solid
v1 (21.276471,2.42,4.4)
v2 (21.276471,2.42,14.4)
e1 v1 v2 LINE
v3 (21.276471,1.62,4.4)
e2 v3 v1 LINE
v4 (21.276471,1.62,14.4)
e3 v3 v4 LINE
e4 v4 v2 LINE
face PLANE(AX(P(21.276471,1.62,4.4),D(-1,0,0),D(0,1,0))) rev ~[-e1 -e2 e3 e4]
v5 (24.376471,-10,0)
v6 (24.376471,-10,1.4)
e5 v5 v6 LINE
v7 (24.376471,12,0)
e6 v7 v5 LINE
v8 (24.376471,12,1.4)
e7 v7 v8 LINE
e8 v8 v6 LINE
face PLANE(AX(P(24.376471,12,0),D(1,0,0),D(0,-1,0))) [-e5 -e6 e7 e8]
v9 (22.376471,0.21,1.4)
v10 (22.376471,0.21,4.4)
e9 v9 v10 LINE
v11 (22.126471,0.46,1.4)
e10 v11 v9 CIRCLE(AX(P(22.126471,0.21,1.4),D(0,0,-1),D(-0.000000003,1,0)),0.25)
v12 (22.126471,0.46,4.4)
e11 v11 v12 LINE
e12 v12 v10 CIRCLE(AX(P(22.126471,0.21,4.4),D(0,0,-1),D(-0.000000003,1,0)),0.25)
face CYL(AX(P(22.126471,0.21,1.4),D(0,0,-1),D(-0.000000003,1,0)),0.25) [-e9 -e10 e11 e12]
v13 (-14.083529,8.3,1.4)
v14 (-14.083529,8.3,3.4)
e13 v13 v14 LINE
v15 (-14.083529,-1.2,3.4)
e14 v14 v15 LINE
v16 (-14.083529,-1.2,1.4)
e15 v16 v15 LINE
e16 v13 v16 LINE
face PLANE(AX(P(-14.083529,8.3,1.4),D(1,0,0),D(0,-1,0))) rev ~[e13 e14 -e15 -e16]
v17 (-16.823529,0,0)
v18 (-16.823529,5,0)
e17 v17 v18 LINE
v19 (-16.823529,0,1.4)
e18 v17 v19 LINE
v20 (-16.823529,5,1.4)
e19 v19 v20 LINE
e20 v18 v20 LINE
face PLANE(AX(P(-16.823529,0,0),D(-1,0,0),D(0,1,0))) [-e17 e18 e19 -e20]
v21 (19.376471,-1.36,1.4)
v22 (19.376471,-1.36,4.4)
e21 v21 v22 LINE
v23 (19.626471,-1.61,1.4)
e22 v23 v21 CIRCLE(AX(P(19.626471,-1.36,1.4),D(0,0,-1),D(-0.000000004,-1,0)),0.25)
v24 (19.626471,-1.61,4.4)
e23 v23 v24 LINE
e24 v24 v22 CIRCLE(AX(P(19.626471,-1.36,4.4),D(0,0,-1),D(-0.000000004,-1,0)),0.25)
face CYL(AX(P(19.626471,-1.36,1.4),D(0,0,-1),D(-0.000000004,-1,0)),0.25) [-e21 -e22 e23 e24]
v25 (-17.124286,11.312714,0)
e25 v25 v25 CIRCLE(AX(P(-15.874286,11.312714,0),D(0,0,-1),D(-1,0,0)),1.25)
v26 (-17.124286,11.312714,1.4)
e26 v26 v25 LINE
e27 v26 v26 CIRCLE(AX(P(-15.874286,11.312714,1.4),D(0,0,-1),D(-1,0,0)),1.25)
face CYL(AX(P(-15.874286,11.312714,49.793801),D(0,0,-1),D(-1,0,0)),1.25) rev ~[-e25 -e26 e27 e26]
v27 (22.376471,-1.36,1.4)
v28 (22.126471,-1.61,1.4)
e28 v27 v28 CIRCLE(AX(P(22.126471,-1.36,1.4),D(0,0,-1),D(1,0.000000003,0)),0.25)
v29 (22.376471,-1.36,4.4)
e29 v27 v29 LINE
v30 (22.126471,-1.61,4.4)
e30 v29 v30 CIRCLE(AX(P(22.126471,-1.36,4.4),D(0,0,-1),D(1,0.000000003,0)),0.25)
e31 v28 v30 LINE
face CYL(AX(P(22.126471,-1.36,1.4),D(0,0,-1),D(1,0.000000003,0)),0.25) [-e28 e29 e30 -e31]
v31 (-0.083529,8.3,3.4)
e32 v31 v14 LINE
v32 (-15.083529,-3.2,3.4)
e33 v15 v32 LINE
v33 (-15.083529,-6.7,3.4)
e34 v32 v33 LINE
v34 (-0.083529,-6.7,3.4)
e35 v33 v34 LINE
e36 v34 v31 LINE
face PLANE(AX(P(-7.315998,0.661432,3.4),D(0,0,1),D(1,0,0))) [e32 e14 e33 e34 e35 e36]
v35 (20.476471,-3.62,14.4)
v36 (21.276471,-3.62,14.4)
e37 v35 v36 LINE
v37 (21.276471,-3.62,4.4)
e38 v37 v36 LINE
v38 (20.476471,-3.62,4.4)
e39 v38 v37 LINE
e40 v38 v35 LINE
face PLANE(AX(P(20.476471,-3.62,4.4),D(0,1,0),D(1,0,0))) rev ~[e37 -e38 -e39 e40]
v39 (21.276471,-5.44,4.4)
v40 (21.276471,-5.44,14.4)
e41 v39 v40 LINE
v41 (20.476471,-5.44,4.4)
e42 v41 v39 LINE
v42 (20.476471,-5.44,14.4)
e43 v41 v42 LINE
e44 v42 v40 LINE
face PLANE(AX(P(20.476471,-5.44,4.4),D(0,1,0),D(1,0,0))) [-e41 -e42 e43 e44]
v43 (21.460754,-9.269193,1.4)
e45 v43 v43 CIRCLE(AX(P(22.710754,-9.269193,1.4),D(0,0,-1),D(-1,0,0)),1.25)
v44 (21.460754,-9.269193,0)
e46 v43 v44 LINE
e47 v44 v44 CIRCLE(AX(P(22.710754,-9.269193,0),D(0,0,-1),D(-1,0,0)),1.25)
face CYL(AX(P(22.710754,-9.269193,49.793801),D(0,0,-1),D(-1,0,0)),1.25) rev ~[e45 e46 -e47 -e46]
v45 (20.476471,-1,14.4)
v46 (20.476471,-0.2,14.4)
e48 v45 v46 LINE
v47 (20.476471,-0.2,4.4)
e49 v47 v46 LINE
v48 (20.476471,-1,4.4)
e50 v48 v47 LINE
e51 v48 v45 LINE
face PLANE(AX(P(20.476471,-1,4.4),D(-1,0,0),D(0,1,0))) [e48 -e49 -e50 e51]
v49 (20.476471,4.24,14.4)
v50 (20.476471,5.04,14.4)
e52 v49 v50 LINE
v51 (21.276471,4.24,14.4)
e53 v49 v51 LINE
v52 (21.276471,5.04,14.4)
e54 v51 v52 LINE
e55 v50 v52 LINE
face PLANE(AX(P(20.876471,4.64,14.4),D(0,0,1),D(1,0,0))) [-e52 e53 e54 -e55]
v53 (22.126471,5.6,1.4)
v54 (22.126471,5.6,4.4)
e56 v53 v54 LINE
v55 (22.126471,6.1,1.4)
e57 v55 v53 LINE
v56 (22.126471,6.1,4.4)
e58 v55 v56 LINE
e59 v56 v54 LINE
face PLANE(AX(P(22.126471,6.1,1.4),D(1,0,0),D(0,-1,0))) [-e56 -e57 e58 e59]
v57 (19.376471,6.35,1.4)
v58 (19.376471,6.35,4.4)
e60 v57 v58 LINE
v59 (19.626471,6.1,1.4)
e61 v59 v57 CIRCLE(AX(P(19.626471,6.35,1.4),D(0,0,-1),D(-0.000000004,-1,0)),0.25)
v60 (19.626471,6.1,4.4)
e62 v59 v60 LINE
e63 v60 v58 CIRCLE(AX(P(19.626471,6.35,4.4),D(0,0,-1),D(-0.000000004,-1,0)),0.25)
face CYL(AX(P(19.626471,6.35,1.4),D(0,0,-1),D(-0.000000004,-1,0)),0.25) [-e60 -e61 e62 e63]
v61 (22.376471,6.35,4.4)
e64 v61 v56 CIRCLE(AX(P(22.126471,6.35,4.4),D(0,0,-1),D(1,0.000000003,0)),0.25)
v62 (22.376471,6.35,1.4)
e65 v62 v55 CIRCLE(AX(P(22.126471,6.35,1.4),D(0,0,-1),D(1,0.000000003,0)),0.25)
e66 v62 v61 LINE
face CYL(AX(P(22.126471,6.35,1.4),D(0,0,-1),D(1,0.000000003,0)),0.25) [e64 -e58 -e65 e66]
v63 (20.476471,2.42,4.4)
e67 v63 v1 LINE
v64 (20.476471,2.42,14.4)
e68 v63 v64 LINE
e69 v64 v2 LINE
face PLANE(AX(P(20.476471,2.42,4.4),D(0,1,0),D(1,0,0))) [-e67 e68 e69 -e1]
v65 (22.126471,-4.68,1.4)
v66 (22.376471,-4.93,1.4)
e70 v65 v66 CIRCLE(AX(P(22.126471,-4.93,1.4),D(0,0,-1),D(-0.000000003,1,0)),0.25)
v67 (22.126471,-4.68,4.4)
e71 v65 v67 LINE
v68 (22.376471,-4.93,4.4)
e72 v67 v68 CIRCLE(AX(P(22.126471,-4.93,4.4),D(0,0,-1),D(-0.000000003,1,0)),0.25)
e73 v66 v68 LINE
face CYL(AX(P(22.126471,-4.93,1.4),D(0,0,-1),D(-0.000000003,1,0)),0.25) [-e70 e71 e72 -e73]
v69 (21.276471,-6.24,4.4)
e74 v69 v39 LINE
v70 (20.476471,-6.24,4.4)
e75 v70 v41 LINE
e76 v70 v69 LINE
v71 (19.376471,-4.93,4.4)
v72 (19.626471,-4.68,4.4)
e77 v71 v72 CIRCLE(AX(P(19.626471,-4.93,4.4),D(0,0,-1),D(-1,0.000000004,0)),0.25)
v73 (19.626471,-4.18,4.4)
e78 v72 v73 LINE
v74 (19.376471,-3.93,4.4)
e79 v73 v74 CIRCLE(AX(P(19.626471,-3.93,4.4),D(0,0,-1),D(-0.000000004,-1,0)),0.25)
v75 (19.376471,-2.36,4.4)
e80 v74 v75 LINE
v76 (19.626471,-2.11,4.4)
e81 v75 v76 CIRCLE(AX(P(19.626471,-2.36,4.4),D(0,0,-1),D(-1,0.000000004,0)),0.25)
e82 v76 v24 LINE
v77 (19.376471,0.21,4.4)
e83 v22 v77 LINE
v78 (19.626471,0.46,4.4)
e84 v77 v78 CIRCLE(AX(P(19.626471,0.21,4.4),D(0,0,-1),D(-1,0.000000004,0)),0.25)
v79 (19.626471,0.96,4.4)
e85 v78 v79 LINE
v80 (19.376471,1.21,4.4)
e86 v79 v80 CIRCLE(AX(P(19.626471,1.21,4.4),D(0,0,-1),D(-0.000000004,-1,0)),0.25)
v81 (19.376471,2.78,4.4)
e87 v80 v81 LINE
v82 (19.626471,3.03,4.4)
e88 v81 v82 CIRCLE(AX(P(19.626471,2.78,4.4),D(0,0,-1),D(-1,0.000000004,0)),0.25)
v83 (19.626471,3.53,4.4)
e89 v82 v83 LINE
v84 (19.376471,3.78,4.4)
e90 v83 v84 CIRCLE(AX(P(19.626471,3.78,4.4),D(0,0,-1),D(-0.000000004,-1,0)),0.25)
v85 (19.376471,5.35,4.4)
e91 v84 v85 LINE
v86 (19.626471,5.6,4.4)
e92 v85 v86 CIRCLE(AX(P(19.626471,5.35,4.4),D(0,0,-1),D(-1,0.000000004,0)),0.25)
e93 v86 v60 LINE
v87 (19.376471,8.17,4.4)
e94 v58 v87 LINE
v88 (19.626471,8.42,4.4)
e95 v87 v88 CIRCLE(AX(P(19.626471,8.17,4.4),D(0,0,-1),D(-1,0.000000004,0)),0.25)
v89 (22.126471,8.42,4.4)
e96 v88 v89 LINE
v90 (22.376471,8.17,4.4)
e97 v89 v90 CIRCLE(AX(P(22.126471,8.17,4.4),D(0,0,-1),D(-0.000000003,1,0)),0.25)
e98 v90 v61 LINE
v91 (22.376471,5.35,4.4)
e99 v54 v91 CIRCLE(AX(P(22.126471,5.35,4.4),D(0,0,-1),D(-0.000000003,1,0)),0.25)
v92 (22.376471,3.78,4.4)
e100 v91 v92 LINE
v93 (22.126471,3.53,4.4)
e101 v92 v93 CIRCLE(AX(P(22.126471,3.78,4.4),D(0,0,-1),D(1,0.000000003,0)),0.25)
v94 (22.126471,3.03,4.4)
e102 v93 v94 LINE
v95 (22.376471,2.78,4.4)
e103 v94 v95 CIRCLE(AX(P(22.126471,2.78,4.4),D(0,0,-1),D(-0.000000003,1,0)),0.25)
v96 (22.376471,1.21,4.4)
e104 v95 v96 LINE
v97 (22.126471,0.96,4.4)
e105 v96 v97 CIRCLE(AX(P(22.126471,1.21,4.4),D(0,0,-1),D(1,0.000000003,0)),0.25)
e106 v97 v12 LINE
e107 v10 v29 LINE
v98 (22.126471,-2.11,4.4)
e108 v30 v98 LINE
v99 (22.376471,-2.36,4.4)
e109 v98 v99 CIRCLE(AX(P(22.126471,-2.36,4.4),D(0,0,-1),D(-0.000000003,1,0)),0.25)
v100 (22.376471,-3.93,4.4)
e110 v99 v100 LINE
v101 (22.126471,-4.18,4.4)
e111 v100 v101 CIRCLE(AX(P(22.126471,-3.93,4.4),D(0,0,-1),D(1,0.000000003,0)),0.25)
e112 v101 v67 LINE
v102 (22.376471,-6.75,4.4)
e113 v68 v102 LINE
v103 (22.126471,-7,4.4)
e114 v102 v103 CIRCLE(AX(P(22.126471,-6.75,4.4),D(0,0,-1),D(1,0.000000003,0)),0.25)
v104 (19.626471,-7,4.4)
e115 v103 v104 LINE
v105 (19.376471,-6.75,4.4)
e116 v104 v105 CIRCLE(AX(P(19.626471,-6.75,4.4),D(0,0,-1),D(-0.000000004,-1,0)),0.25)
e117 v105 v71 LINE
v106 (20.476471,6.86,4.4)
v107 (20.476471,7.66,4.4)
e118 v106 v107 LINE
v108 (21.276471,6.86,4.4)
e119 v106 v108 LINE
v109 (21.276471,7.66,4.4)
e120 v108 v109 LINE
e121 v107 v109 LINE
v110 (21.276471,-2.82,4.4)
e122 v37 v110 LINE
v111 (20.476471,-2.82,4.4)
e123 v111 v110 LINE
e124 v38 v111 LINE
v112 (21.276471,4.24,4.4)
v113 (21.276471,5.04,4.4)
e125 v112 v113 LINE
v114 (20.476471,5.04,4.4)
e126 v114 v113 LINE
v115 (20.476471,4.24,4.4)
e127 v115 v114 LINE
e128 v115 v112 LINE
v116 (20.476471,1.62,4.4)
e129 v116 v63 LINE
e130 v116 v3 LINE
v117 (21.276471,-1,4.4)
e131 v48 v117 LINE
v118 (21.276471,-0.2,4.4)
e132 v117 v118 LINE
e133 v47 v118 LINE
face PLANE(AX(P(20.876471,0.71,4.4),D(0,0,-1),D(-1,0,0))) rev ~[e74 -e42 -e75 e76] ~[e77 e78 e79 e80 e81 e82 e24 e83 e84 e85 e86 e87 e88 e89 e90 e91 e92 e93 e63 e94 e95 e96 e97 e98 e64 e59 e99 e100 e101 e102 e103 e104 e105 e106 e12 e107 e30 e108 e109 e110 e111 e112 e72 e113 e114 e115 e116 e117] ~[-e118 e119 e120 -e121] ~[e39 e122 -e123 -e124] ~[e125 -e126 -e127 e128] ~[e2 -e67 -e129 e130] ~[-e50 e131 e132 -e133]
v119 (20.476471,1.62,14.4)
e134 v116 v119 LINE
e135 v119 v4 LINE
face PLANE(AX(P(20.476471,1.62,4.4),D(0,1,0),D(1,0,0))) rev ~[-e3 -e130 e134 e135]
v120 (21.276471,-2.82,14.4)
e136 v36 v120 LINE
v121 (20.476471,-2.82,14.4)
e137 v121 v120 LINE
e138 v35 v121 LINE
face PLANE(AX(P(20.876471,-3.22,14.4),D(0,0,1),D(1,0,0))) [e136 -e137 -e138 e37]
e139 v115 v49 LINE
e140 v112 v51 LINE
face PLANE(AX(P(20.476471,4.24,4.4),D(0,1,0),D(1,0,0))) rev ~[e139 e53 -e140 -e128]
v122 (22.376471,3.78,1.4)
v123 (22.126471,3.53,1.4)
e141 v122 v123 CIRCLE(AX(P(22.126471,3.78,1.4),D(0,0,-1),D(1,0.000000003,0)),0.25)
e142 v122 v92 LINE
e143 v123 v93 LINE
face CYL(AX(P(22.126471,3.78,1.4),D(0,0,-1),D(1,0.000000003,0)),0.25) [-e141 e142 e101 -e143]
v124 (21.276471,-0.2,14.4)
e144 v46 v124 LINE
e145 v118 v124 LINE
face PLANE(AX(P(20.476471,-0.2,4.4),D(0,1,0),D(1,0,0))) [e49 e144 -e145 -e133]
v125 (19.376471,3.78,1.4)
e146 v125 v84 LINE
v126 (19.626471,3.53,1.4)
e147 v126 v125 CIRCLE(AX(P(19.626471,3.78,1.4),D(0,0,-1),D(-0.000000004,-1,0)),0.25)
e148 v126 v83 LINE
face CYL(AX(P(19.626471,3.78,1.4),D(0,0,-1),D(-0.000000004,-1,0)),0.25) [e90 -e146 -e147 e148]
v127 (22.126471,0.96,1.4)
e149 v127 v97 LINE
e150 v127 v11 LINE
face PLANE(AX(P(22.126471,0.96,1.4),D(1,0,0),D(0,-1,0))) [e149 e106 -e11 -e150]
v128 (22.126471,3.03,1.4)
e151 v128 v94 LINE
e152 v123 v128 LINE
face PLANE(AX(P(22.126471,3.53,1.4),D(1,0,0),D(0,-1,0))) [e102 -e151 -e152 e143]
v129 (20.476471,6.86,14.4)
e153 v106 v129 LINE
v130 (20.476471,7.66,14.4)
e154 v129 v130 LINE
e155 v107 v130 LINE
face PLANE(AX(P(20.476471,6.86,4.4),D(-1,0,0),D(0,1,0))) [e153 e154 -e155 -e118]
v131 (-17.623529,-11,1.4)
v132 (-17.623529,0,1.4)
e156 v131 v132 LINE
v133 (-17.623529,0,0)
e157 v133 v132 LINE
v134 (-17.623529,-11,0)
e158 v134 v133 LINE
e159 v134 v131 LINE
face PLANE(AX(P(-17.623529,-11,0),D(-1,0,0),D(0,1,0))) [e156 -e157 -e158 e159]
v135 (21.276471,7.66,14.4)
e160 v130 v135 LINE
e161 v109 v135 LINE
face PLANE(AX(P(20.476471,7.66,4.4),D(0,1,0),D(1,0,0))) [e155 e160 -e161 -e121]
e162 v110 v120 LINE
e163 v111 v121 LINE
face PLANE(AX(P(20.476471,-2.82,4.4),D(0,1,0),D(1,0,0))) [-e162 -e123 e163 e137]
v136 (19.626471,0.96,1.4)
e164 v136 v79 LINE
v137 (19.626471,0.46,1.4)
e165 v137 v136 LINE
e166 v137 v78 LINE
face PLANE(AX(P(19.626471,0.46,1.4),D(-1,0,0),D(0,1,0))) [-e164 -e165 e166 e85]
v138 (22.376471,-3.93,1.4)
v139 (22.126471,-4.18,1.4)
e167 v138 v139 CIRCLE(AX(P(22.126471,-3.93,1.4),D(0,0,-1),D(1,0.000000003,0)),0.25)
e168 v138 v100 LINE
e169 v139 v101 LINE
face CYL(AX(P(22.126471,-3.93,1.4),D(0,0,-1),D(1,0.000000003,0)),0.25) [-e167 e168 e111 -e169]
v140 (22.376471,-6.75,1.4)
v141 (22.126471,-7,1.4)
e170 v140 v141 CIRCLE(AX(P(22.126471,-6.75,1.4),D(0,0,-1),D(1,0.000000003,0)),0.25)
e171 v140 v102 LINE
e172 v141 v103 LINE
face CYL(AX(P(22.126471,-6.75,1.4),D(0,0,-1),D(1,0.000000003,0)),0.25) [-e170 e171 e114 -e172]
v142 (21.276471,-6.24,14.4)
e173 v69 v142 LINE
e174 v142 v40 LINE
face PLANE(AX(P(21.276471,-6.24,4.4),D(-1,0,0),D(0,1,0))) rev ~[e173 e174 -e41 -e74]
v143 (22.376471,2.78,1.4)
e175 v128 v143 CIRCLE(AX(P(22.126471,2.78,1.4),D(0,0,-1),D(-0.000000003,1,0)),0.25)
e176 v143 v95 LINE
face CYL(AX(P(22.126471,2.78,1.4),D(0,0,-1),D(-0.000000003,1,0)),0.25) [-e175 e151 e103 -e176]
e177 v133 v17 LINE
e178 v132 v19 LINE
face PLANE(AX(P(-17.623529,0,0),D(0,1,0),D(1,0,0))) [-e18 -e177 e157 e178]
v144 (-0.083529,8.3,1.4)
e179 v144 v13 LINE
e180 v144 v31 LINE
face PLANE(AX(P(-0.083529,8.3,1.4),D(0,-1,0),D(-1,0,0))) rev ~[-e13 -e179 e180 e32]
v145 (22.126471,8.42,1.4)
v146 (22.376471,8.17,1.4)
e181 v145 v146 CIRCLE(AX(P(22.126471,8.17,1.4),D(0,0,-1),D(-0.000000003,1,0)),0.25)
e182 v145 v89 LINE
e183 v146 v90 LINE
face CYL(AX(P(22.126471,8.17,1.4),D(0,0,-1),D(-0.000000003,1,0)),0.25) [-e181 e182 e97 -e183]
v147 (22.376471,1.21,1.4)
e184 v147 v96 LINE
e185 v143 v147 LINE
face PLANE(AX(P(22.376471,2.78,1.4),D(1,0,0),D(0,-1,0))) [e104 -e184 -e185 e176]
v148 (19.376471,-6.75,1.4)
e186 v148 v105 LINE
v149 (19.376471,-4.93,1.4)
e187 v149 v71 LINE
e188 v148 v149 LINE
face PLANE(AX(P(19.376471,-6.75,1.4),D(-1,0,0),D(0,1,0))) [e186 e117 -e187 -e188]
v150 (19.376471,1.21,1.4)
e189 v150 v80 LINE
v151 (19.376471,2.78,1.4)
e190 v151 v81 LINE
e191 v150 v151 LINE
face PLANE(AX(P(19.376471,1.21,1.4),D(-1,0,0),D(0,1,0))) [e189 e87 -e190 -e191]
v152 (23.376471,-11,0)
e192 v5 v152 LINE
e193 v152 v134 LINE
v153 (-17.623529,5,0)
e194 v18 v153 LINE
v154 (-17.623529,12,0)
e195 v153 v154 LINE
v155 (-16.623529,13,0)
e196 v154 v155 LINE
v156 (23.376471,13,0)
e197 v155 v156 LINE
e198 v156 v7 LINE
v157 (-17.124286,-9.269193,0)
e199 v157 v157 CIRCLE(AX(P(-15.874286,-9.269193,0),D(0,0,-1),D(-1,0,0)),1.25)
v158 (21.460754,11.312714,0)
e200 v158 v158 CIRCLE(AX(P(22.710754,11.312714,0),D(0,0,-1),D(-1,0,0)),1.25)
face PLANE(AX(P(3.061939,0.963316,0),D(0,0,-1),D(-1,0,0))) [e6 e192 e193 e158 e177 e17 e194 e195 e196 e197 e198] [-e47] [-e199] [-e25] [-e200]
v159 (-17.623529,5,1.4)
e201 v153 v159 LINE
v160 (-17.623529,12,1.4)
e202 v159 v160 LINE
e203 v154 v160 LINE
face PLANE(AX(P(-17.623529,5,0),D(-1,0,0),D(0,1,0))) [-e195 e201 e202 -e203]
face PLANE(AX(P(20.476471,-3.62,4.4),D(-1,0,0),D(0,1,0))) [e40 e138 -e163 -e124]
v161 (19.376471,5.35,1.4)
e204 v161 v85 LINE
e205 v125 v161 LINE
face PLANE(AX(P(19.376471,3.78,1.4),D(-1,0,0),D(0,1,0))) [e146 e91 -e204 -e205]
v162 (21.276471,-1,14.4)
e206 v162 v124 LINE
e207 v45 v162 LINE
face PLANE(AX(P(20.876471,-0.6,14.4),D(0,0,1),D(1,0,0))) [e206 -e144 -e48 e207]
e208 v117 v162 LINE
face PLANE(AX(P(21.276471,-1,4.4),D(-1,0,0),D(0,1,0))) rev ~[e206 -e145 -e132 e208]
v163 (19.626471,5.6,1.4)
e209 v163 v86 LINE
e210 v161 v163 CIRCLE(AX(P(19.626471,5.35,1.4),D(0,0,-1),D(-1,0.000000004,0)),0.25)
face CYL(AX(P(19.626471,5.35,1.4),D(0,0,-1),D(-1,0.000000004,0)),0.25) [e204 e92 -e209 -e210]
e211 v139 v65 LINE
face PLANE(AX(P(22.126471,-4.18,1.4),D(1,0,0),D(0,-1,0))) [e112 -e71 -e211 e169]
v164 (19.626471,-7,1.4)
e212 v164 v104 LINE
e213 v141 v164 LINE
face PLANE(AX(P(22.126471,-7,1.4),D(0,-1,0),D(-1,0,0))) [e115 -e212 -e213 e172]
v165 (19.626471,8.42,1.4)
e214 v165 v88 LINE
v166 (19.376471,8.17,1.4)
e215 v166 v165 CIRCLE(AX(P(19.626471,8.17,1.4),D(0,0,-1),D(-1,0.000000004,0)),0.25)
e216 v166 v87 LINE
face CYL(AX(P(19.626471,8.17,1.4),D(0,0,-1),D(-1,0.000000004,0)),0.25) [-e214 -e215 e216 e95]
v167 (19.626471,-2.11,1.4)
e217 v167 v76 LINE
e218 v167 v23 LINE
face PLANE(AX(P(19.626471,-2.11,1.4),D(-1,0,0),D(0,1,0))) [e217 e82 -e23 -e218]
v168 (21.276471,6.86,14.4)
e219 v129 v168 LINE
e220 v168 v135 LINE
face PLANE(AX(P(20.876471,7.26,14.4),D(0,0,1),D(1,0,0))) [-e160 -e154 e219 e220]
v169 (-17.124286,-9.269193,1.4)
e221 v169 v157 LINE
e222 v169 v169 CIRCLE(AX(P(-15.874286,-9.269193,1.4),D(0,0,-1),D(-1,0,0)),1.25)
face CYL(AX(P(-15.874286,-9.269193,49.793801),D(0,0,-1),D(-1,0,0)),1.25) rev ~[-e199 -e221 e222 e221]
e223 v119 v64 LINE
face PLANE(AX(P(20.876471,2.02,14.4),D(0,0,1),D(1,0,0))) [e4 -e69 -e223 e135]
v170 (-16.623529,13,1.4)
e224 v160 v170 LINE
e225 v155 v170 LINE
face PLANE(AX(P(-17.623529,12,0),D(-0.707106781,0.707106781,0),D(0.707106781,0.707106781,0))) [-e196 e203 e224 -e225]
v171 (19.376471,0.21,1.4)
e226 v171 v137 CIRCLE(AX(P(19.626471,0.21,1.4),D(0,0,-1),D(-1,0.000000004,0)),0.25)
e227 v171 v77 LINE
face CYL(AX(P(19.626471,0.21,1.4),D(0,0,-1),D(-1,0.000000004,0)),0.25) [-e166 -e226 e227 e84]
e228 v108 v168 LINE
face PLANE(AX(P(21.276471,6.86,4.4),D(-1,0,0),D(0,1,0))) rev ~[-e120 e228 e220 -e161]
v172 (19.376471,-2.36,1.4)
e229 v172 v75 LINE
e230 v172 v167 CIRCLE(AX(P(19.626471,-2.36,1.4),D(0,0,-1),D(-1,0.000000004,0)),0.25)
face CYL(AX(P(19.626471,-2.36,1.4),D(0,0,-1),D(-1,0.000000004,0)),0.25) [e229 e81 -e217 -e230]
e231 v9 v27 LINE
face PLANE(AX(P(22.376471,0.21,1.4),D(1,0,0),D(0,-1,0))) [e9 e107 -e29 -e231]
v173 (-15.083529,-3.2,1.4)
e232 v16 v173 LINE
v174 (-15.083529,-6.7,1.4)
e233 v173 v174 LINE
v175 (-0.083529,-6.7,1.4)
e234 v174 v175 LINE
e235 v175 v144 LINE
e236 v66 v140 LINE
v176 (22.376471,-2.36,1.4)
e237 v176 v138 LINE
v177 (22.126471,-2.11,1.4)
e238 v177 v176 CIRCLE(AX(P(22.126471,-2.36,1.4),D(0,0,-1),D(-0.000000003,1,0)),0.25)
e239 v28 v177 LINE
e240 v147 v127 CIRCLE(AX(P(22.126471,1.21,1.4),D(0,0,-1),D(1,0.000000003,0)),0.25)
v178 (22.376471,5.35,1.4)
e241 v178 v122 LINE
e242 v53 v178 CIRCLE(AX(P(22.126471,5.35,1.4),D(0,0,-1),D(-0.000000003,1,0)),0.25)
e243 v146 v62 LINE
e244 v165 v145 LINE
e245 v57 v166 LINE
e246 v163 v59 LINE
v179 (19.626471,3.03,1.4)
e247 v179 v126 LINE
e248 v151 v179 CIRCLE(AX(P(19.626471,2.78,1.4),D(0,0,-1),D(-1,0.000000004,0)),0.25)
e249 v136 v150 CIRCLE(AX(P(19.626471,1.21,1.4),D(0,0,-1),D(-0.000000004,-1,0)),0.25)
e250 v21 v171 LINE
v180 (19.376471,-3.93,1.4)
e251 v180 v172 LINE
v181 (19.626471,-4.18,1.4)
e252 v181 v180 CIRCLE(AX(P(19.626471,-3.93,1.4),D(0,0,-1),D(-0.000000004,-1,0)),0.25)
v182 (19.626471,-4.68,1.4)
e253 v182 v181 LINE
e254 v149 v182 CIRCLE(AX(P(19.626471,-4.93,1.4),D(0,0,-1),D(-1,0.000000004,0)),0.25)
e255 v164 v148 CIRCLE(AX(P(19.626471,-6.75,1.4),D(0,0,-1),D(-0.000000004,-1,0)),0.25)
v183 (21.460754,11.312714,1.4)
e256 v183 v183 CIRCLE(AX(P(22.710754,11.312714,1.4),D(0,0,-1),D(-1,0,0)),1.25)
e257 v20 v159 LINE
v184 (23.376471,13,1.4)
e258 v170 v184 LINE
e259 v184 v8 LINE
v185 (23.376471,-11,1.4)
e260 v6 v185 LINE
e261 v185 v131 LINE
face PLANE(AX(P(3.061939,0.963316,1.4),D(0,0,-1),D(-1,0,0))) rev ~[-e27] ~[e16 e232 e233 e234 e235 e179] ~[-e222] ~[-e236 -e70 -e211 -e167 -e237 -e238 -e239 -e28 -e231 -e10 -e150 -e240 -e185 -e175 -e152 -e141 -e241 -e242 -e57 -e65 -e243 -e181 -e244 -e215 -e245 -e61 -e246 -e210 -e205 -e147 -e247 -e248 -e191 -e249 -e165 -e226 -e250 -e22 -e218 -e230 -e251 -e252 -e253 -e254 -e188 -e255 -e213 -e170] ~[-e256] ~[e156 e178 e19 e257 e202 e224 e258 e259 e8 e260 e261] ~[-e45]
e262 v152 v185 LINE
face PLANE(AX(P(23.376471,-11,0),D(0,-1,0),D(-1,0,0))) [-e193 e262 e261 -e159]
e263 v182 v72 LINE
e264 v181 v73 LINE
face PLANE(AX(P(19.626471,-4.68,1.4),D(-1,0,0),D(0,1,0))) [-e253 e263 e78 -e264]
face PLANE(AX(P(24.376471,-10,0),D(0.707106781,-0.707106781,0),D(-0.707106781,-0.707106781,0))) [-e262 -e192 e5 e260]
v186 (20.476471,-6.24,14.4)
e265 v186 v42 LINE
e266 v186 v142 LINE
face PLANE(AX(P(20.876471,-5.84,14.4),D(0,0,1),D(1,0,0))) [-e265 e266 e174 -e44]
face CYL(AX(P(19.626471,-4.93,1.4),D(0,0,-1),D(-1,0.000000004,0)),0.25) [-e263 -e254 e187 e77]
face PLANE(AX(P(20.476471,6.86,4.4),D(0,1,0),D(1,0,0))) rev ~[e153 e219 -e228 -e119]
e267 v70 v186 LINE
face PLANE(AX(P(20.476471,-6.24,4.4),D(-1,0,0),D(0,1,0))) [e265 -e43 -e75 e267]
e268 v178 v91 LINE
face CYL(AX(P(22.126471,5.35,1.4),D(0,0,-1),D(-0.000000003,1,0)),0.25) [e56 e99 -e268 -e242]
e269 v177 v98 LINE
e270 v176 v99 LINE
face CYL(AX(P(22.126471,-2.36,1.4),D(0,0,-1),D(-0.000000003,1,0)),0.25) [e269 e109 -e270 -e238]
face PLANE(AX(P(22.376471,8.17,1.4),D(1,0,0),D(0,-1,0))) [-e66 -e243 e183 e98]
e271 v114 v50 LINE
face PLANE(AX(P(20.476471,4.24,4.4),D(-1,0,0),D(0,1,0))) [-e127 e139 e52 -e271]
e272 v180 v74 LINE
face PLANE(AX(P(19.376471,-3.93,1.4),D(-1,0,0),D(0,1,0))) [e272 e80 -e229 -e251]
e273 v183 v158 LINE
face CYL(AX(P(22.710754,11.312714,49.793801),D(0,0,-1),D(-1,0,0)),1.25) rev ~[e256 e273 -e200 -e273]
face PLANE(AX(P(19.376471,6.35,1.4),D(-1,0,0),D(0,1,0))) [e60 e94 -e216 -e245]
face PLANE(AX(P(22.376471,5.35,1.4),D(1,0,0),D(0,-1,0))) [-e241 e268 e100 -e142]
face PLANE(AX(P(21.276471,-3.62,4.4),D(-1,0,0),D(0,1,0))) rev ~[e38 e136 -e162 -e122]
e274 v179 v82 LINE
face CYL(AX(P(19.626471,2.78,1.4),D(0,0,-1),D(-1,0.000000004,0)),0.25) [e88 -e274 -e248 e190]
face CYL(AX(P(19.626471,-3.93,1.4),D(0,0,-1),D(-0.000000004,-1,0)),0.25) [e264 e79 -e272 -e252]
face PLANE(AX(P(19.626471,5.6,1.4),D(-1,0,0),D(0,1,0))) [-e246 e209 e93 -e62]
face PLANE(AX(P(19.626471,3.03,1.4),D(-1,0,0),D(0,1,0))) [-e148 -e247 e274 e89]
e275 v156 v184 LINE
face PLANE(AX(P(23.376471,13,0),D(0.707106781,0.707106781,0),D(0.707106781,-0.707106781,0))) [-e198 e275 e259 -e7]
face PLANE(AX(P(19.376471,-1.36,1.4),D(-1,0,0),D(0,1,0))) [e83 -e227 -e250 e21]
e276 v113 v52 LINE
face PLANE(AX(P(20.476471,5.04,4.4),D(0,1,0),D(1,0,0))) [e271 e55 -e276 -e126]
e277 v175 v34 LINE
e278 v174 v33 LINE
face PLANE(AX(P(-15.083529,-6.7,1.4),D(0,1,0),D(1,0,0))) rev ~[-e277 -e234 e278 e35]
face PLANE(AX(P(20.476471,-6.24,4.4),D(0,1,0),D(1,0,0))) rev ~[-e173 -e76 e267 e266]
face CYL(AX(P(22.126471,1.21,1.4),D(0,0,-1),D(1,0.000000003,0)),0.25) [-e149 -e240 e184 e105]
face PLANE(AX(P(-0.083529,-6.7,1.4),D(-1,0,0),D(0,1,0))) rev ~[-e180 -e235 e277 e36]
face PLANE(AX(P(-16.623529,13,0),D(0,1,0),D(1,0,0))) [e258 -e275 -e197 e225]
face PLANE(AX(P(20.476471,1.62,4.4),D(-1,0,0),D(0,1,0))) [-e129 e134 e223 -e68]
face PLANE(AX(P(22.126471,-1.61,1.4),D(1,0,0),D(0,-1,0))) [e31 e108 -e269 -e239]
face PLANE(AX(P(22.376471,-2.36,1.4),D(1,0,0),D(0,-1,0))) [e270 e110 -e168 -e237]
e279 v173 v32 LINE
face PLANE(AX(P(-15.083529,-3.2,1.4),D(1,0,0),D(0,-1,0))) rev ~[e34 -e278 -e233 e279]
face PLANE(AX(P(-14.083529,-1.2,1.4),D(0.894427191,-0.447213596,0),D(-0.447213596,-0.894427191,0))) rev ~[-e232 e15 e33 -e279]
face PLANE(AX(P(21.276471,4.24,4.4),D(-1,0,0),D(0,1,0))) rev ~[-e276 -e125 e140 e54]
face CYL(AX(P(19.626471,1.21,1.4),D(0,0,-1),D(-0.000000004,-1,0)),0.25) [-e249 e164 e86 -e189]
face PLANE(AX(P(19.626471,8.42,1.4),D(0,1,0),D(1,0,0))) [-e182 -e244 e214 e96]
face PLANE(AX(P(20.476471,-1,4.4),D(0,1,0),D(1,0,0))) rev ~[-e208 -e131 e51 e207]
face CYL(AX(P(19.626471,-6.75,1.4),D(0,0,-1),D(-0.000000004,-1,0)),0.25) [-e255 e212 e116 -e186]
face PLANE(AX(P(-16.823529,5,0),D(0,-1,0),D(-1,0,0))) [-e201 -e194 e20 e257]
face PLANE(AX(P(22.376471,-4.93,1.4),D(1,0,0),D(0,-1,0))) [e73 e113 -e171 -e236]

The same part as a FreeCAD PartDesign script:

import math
import FreeCAD as App
import Part
import Sketcher

V = App.Vector
Q = App.Units.Quantity

doc = App.newDocument("Part")
params = doc.addObject("Spreadsheet::Sheet", "Params")
for row, (alias, value) in enumerate([
    ("sketch1_width", "41 mm"),
    ("sketch1_width2", "40 mm"),
    ("sketch1_height", "7 mm"),
    ("sketch1_height2", "5 mm"),
    ("sketch1_height3", "11 mm"),
    ("pad1_length", "1.4 mm"),
    ("sketch2_diameter", "2.5 mm"),
    ("hole_diameter", "2.5 mm"),
    ("sketch3_width", "15 mm"),
    ("sketch3_width2", "14 mm"),
    ("sketch3_height", "9.5 mm"),
    ("sketch3_height2", "3.5 mm"),
    ("pad2_length", "2 mm"),
    ("sketch4_radius", "0.25 mm"),
    ("sketch4_width", "2.5 mm"),
    ("sketch4_height", "0.5 mm"),
    ("sketch4_height2", "1.82 mm"),
    ("sketch4_height3", "1.57 mm"),
    ("pad3_length", "3 mm"),
    ("sketch5_width", "0.8 mm"),
    ("pad4_length", "10 mm"),
], start=1):
    params.set(f"A{row}", alias)
    params.set(f"B{row}", "=" + value)
    params.setAlias(f"B{row}", alias)

body = doc.addObject("PartDesign::Body", "Body")

sketch1 = doc.addObject("Sketcher::SketchObject", "Sketch")
body.addObject(sketch1)
sketch1.AttachmentSupport = (doc.XY_Plane, [""])
sketch1.MapMode = "FlatFace"
sketch1.addGeometry([
    Part.LineSegment(V(-16.6, 13, 0), V(-17.6, 12, 0)),
    Part.LineSegment(V(-17.6, 12, 0), V(-17.6, 5, 0)),
    Part.LineSegment(V(-17.6, 5, 0), V(-16.8, 5, 0)),
    Part.LineSegment(V(-16.8, 5, 0), V(-16.8, 0, 0)),
    Part.LineSegment(V(-16.8, 0, 0), V(-17.6, 0, 0)),
    Part.LineSegment(V(-17.6, 0, 0), V(-17.6, -11, 0)),
    Part.LineSegment(V(-17.6, -11, 0), V(23.4, -11, 0)),
    Part.LineSegment(V(23.4, -11, 0), V(24.4, -10, 0)),
    Part.LineSegment(V(24.4, -10, 0), V(24.4, 12, 0)),
    Part.LineSegment(V(24.4, 12, 0), V(23.4, 13, 0)),
    Part.LineSegment(V(23.4, 13, 0), V(-16.6, 13, 0)),
], False)
sketch1.addConstraint([
    Sketcher.Constraint("Coincident", 0, 2, 1, 1),
    Sketcher.Constraint("Coincident", 1, 2, 2, 1),
    Sketcher.Constraint("Coincident", 2, 2, 3, 1),
    Sketcher.Constraint("Coincident", 3, 2, 4, 1),
    Sketcher.Constraint("Coincident", 4, 2, 5, 1),
    Sketcher.Constraint("Coincident", 5, 2, 6, 1),
    Sketcher.Constraint("Coincident", 6, 2, 7, 1),
    Sketcher.Constraint("Coincident", 7, 2, 8, 1),
    Sketcher.Constraint("Coincident", 8, 2, 9, 1),
    Sketcher.Constraint("Coincident", 9, 2, 10, 1),
    Sketcher.Constraint("Coincident", 10, 2, 0, 1),
    Sketcher.Constraint("Vertical", 1),
    Sketcher.Constraint("Horizontal", 2),
    Sketcher.Constraint("Vertical", 3),
    Sketcher.Constraint("Horizontal", 4),
    Sketcher.Constraint("Vertical", 5),
    Sketcher.Constraint("Horizontal", 6),
    Sketcher.Constraint("Vertical", 8),
    Sketcher.Constraint("Horizontal", 10),
    Sketcher.Constraint("PointOnObject", 3, 2, -1),
    Sketcher.Constraint("Parallel", 0, 7),
    Sketcher.Constraint("Perpendicular", 7, 9),
    Sketcher.Constraint("Horizontal", 0, 2, 8, 2),
    Sketcher.Constraint("Vertical", 1, 2, 4, 2),
    Sketcher.Constraint("Vertical", 6, 2, 9, 2),
    Sketcher.Constraint("Equal", 0, 7),
    Sketcher.Constraint("DistanceX", 6, 1, 6, 2, Q("41 mm")),
    Sketcher.Constraint("DistanceX", 10, 2, 10, 1, Q("40 mm")),
    Sketcher.Constraint("DistanceY", 1, 2, 1, 1, Q("7 mm")),
    Sketcher.Constraint("DistanceY", 3, 2, 3, 1, Q("5 mm")),
    Sketcher.Constraint("DistanceY", 5, 2, 5, 1, Q("11 mm")),
    Sketcher.Constraint("DistanceX", 2, 1, 2, 2, Q("0.8 mm")),
    Sketcher.Constraint("DistanceX", 0, 2, -1, 1, Q("17.623529 mm")),
])
sketch1.setExpression("Constraints[26]", "Params.sketch1_width")
sketch1.setExpression("Constraints[27]", "Params.sketch1_width2")
sketch1.setExpression("Constraints[28]", "Params.sketch1_height")
sketch1.setExpression("Constraints[29]", "Params.sketch1_height2")
sketch1.setExpression("Constraints[30]", "Params.sketch1_height3")
pad1 = doc.addObject("PartDesign::Pad", "Pad")
body.addObject(pad1)
pad1.Profile = sketch1
pad1.setExpression("Length", "Params.pad1_length")

sketch2 = doc.addObject("Sketcher::SketchObject", "Sketch001")
body.addObject(sketch2)
sketch2.AttachmentSupport = (doc.XY_Plane, [""])
sketch2.MapMode = "FlatFace"
sketch2.AttachmentOffset = App.Placement(V(0, 0, 1.4), App.Rotation())
sketch2.addGeometry([
    Part.Circle(V(-15.9, -9.3, 0), V(0, 0, 1), 1.2),
    Part.Circle(V(-15.9, 11.3, 0), V(0, 0, 1), 1.2),
    Part.Circle(V(22.7, -9.3, 0), V(0, 0, 1), 1.2),
    Part.Circle(V(22.7, 11.3, 0), V(0, 0, 1), 1.2),
], False)
sketch2.addConstraint([
    Sketcher.Constraint("Equal", 0, 1),
    Sketcher.Constraint("Equal", 1, 2),
    Sketcher.Constraint("Equal", 2, 3),
    Sketcher.Constraint("Horizontal", 0, 3, 2, 3),
    Sketcher.Constraint("Horizontal", 1, 3, 3, 3),
    Sketcher.Constraint("Vertical", 0, 3, 1, 3),
    Sketcher.Constraint("Vertical", 2, 3, 3, 3),
    Sketcher.Constraint("Diameter", 0, Q("2.5 mm")),
    Sketcher.Constraint("DistanceX", 0, 3, 2, 3, Q("38.58504 mm")),
    Sketcher.Constraint("DistanceX", 0, 3, -1, 1, Q("15.874286 mm")),
    Sketcher.Constraint("DistanceY", 0, 3, -1, 1, Q("9.269193 mm")),
    Sketcher.Constraint("DistanceY", -1, 1, 1, 3, Q("11.312714 mm")),
])
sketch2.setExpression("Constraints[7]", "Params.sketch2_diameter")
doc.recompute()
hole = doc.addObject("PartDesign::Hole", "Hole")
body.addObject(hole)
hole.Profile = sketch2
hole.ThreadType = "None"
hole.setExpression("Diameter", "Params.hole_diameter")
hole.DepthType = "ThroughAll"

sketch3 = doc.addObject("Sketcher::SketchObject", "Sketch002")
body.addObject(sketch3)
sketch3.AttachmentSupport = (doc.XY_Plane, [""])
sketch3.MapMode = "FlatFace"
sketch3.AttachmentOffset = App.Placement(V(0, 0, 1.4), App.Rotation())
sketch3.addGeometry([
    Part.LineSegment(V(-15.1, -6.7, 0), V(-0.1, -6.7, 0)),
    Part.LineSegment(V(-0.1, -6.7, 0), V(-0.1, 8.3, 0)),
    Part.LineSegment(V(-0.1, 8.3, 0), V(-14.1, 8.3, 0)),
    Part.LineSegment(V(-14.1, 8.3, 0), V(-14.1, -1.2, 0)),
    Part.LineSegment(V(-14.1, -1.2, 0), V(-15.1, -3.2, 0)),
    Part.LineSegment(V(-15.1, -3.2, 0), V(-15.1, -6.7, 0)),
], False)
sketch3.addConstraint([
    Sketcher.Constraint("Coincident", 0, 2, 1, 1),
    Sketcher.Constraint("Coincident", 1, 2, 2, 1),
    Sketcher.Constraint("Coincident", 2, 2, 3, 1),
    Sketcher.Constraint("Coincident", 3, 2, 4, 1),
    Sketcher.Constraint("Coincident", 4, 2, 5, 1),
    Sketcher.Constraint("Coincident", 5, 2, 0, 1),
    Sketcher.Constraint("Horizontal", 0),
    Sketcher.Constraint("Vertical", 1),
    Sketcher.Constraint("Horizontal", 2),
    Sketcher.Constraint("Vertical", 3),
    Sketcher.Constraint("Vertical", 5),
    Sketcher.Constraint("Equal", 0, 1),
    Sketcher.Constraint("DistanceX", 0, 1, 0, 2, Q("15 mm")),
    Sketcher.Constraint("DistanceX", 2, 2, 2, 1, Q("14 mm")),
    Sketcher.Constraint("DistanceY", 3, 2, 3, 1, Q("9.5 mm")),
    Sketcher.Constraint("DistanceY", 5, 2, 5, 1, Q("3.5 mm")),
    Sketcher.Constraint("DistanceY", 0, 2, -1, 1, Q("6.7 mm")),
    Sketcher.Constraint("DistanceX", 0, 2, -1, 1, Q("0.083529 mm")),
])
sketch3.setExpression("Constraints[12]", "Params.sketch3_width")
sketch3.setExpression("Constraints[13]", "Params.sketch3_width2")
sketch3.setExpression("Constraints[14]", "Params.sketch3_height")
sketch3.setExpression("Constraints[15]", "Params.sketch3_height2")
pad2 = doc.addObject("PartDesign::Pad", "Pad001")
body.addObject(pad2)
pad2.Profile = sketch3
pad2.setExpression("Length", "Params.pad2_length")

sketch4 = doc.addObject("Sketcher::SketchObject", "Sketch003")
body.addObject(sketch4)
sketch4.AttachmentSupport = (doc.XY_Plane, [""])
sketch4.MapMode = "FlatFace"
sketch4.AttachmentOffset = App.Placement(V(0, 0, 1.4), App.Rotation())
sketch4.addGeometry([
    Part.LineSegment(V(22.13, 5.6, 0), V(22.13, 6.1, 0)),
    Part.ArcOfCircle(Part.Circle(V(22.13, 6.35, 0), V(0, 0, 1), 0.25), math.radians(-90), math.radians(0)),
    Part.LineSegment(V(22.38, 6.35, 0), V(22.38, 8.17, 0)),
    Part.ArcOfCircle(Part.Circle(V(22.13, 8.17, 0), V(0, 0, 1), 0.25), math.radians(0), math.radians(90)),
    Part.LineSegment(V(22.13, 8.42, 0), V(19.63, 8.42, 0)),
    Part.ArcOfCircle(Part.Circle(V(19.63, 8.17, 0), V(0, 0, 1), 0.25), math.radians(90), math.radians(180)),
    Part.LineSegment(V(19.38, 8.17, 0), V(19.38, 6.35, 0)),
    Part.ArcOfCircle(Part.Circle(V(19.63, 6.35, 0), V(0, 0, 1), 0.25), math.radians(-180), math.radians(-90)),
    Part.LineSegment(V(19.63, 6.1, 0), V(19.63, 5.6, 0)),
    Part.ArcOfCircle(Part.Circle(V(19.63, 5.35, 0), V(0, 0, 1), 0.25), math.radians(90), math.radians(180)),
    Part.LineSegment(V(19.38, 5.35, 0), V(19.38, 3.78, 0)),
    Part.ArcOfCircle(Part.Circle(V(19.63, 3.78, 0), V(0, 0, 1), 0.25), math.radians(-180), math.radians(-90)),
    Part.LineSegment(V(19.63, 3.53, 0), V(19.63, 3.03, 0)),
    Part.ArcOfCircle(Part.Circle(V(19.63, 2.78, 0), V(0, 0, 1), 0.25), math.radians(90), math.radians(180)),
    Part.LineSegment(V(19.38, 2.78, 0), V(19.38, 1.21, 0)),
    Part.ArcOfCircle(Part.Circle(V(19.63, 1.21, 0), V(0, 0, 1), 0.25), math.radians(-180), math.radians(-90)),
    Part.LineSegment(V(19.63, 0.96, 0), V(19.63, 0.46, 0)),
    Part.ArcOfCircle(Part.Circle(V(19.63, 0.21, 0), V(0, 0, 1), 0.25), math.radians(90), math.radians(180)),
    Part.LineSegment(V(19.38, 0.21, 0), V(19.38, -1.36, 0)),
    Part.ArcOfCircle(Part.Circle(V(19.63, -1.36, 0), V(0, 0, 1), 0.25), math.radians(-180), math.radians(-90)),
    Part.LineSegment(V(19.63, -1.61, 0), V(19.63, -2.11, 0)),
    Part.ArcOfCircle(Part.Circle(V(19.63, -2.36, 0), V(0, 0, 1), 0.25), math.radians(90), math.radians(180)),
    Part.LineSegment(V(19.38, -2.36, 0), V(19.38, -3.93, 0)),
    Part.ArcOfCircle(Part.Circle(V(19.63, -3.93, 0), V(0, 0, 1), 0.25), math.radians(-180), math.radians(-90)),
    Part.LineSegment(V(19.63, -4.18, 0), V(19.63, -4.68, 0)),
    Part.ArcOfCircle(Part.Circle(V(19.63, -4.93, 0), V(0, 0, 1), 0.25), math.radians(90), math.radians(180)),
    Part.LineSegment(V(19.38, -4.93, 0), V(19.38, -6.75, 0)),
    Part.ArcOfCircle(Part.Circle(V(19.63, -6.75, 0), V(0, 0, 1), 0.25), math.radians(-180), math.radians(-90)),
    Part.LineSegment(V(19.63, -7, 0), V(22.13, -7, 0)),
    Part.ArcOfCircle(Part.Circle(V(22.13, -6.75, 0), V(0, 0, 1), 0.25), math.radians(-90), math.radians(0)),
    Part.LineSegment(V(22.38, -6.75, 0), V(22.38, -4.93, 0)),
    Part.ArcOfCircle(Part.Circle(V(22.13, -4.93, 0), V(0, 0, 1), 0.25), math.radians(0), math.radians(90)),
    Part.LineSegment(V(22.13, -4.68, 0), V(22.13, -4.18, 0)),
    Part.ArcOfCircle(Part.Circle(V(22.13, -3.93, 0), V(0, 0, 1), 0.25), math.radians(-90), math.radians(0)),
    Part.LineSegment(V(22.38, -3.93, 0), V(22.38, -2.36, 0)),
    Part.ArcOfCircle(Part.Circle(V(22.13, -2.36, 0), V(0, 0, 1), 0.25), math.radians(0), math.radians(90)),
    Part.LineSegment(V(22.13, -2.11, 0), V(22.13, -1.61, 0)),
    Part.ArcOfCircle(Part.Circle(V(22.13, -1.36, 0), V(0, 0, 1), 0.25), math.radians(-90), math.radians(0)),
    Part.LineSegment(V(22.38, -1.36, 0), V(22.38, 0.21, 0)),
    Part.ArcOfCircle(Part.Circle(V(22.13, 0.21, 0), V(0, 0, 1), 0.25), math.radians(0), math.radians(90)),
    Part.LineSegment(V(22.13, 0.46, 0), V(22.13, 0.96, 0)),
    Part.ArcOfCircle(Part.Circle(V(22.13, 1.21, 0), V(0, 0, 1), 0.25), math.radians(-90), math.radians(0)),
    Part.LineSegment(V(22.38, 1.21, 0), V(22.38, 2.78, 0)),
    Part.ArcOfCircle(Part.Circle(V(22.13, 2.78, 0), V(0, 0, 1), 0.25), math.radians(0), math.radians(90)),
    Part.LineSegment(V(22.13, 3.03, 0), V(22.13, 3.53, 0)),
    Part.ArcOfCircle(Part.Circle(V(22.13, 3.78, 0), V(0, 0, 1), 0.25), math.radians(-90), math.radians(0)),
    Part.LineSegment(V(22.38, 3.78, 0), V(22.38, 5.35, 0)),
    Part.ArcOfCircle(Part.Circle(V(22.13, 5.35, 0), V(0, 0, 1), 0.25), math.radians(0), math.radians(90)),
], False)
sketch4.addConstraint([
    Sketcher.Constraint("Coincident", 0, 2, 1, 1),
    Sketcher.Constraint("Tangent", 1, 2, 2, 1),
    Sketcher.Constraint("Tangent", 2, 2, 3, 1),
    Sketcher.Constraint("Tangent", 3, 2, 4, 1),
    Sketcher.Constraint("Tangent", 4, 2, 5, 1),
    Sketcher.Constraint("Tangent", 5, 2, 6, 1),
    Sketcher.Constraint("Tangent", 6, 2, 7, 1),
    Sketcher.Constraint("Coincident", 7, 2, 8, 1),
    Sketcher.Constraint("Coincident", 8, 2, 9, 1),
    Sketcher.Constraint("Tangent", 9, 2, 10, 1),
    Sketcher.Constraint("Tangent", 10, 2, 11, 1),
    Sketcher.Constraint("Coincident", 11, 2, 12, 1),
    Sketcher.Constraint("Coincident", 12, 2, 13, 1),
    Sketcher.Constraint("Tangent", 13, 2, 14, 1),
    Sketcher.Constraint("Tangent", 14, 2, 15, 1),
    Sketcher.Constraint("Coincident", 15, 2, 16, 1),
    Sketcher.Constraint("Coincident", 16, 2, 17, 1),
    Sketcher.Constraint("Tangent", 17, 2, 18, 1),
    Sketcher.Constraint("Tangent", 18, 2, 19, 1),
    Sketcher.Constraint("Coincident", 19, 2, 20, 1),
    Sketcher.Constraint("Coincident", 20, 2, 21, 1),
    Sketcher.Constraint("Tangent", 21, 2, 22, 1),
    Sketcher.Constraint("Tangent", 22, 2, 23, 1),
    Sketcher.Constraint("Coincident", 23, 2, 24, 1),
    Sketcher.Constraint("Coincident", 24, 2, 25, 1),
    Sketcher.Constraint("Tangent", 25, 2, 26, 1),
    Sketcher.Constraint("Tangent", 26, 2, 27, 1),
    Sketcher.Constraint("Tangent", 27, 2, 28, 1),
    Sketcher.Constraint("Tangent", 28, 2, 29, 1),
    Sketcher.Constraint("Tangent", 29, 2, 30, 1),
    Sketcher.Constraint("Tangent", 30, 2, 31, 1),
    Sketcher.Constraint("Coincident", 31, 2, 32, 1),
    Sketcher.Constraint("Coincident", 32, 2, 33, 1),
    Sketcher.Constraint("Tangent", 33, 2, 34, 1),
    Sketcher.Constraint("Tangent", 34, 2, 35, 1),
    Sketcher.Constraint("Coincident", 35, 2, 36, 1),
    Sketcher.Constraint("Coincident", 36, 2, 37, 1),
    Sketcher.Constraint("Tangent", 37, 2, 38, 1),
    Sketcher.Constraint("Tangent", 38, 2, 39, 1),
    Sketcher.Constraint("Coincident", 39, 2, 40, 1),
    Sketcher.Constraint("Coincident", 40, 2, 41, 1),
    Sketcher.Constraint("Tangent", 41, 2, 42, 1),
    Sketcher.Constraint("Tangent", 42, 2, 43, 1),
    Sketcher.Constraint("Coincident", 43, 2, 44, 1),
    Sketcher.Constraint("Coincident", 44, 2, 45, 1),
    Sketcher.Constraint("Tangent", 45, 2, 46, 1),
    Sketcher.Constraint("Tangent", 46, 2, 47, 1),
    Sketcher.Constraint("Coincident", 47, 2, 0, 1),
    Sketcher.Constraint("Vertical", 0),
    Sketcher.Constraint("Vertical", 2),
    Sketcher.Constraint("Horizontal", 4),
    Sketcher.Constraint("Vertical", 6),
    Sketcher.Constraint("Vertical", 8),
    Sketcher.Constraint("Vertical", 10),
    Sketcher.Constraint("Vertical", 12),
    Sketcher.Constraint("Vertical", 14),
    Sketcher.Constraint("Vertical", 16),
    Sketcher.Constraint("Vertical", 18),
    Sketcher.Constraint("Vertical", 20),
    Sketcher.Constraint("Vertical", 22),
    Sketcher.Constraint("Vertical", 24),
    Sketcher.Constraint("Vertical", 26),
    Sketcher.Constraint("Horizontal", 28),
    Sketcher.Constraint("Vertical", 30),
    Sketcher.Constraint("Vertical", 32),
    Sketcher.Constraint("Vertical", 34),
    Sketcher.Constraint("Vertical", 36),
    Sketcher.Constraint("Vertical", 38),
    Sketcher.Constraint("Vertical", 40),
    Sketcher.Constraint("Vertical", 42),
    Sketcher.Constraint("Vertical", 44),
    Sketcher.Constraint("Vertical", 46),
    Sketcher.Constraint("Equal", 1, 3),
    Sketcher.Constraint("Equal", 3, 5),
    Sketcher.Constraint("Equal", 5, 7),
    Sketcher.Constraint("Equal", 7, 9),
    Sketcher.Constraint("Equal", 9, 11),
    Sketcher.Constraint("Equal", 11, 13),
    Sketcher.Constraint("Equal", 13, 15),
    Sketcher.Constraint("Equal", 15, 17),
    Sketcher.Constraint("Equal", 17, 19),
    Sketcher.Constraint("Equal", 19, 21),
    Sketcher.Constraint("Equal", 21, 23),
    Sketcher.Constraint("Equal", 23, 25),
    Sketcher.Constraint("Equal", 25, 27),
    Sketcher.Constraint("Equal", 27, 29),
    Sketcher.Constraint("Equal", 29, 31),
    Sketcher.Constraint("Equal", 31, 33),
    Sketcher.Constraint("Equal", 33, 35),
    Sketcher.Constraint("Equal", 35, 37),
    Sketcher.Constraint("Equal", 37, 39),
    Sketcher.Constraint("Equal", 39, 41),
    Sketcher.Constraint("Equal", 41, 43),
    Sketcher.Constraint("Equal", 43, 45),
    Sketcher.Constraint("Equal", 45, 47),
    Sketcher.Constraint("Horizontal", 1, 3, 7, 3),
    Sketcher.Constraint("Horizontal", 25, 3, 31, 3),
    Sketcher.Constraint("Horizontal", 23, 3, 33, 3),
    Sketcher.Constraint("Horizontal", 21, 3, 35, 3),
    Sketcher.Constraint("Horizontal", 19, 3, 37, 3),
    Sketcher.Constraint("Horizontal", 17, 3, 39, 3),
    Sketcher.Constraint("Horizontal", 15, 3, 41, 3),
    Sketcher.Constraint("Horizontal", 13, 3, 43, 3),
    Sketcher.Constraint("Horizontal", 11, 3, 45, 3),
    Sketcher.Constraint("Horizontal", 9, 3, 47, 3),
    Sketcher.Constraint("Vertical", 7, 3, 9, 3),
    Sketcher.Constraint("Vertical", 11, 3, 13, 3),
    Sketcher.Constraint("Vertical", 15, 3, 17, 3),
    Sketcher.Constraint("Vertical", 19, 3, 21, 3),
    Sketcher.Constraint("Vertical", 23, 3, 25, 3),
    Sketcher.Constraint("Vertical", 3, 3, 29, 3),
    Sketcher.Constraint("Vertical", 31, 3, 33, 3),
    Sketcher.Constraint("Vertical", 35, 3, 37, 3),
    Sketcher.Constraint("Vertical", 39, 3, 41, 3),
    Sketcher.Constraint("Vertical", 43, 3, 45, 3),
    Sketcher.Constraint("Vertical", 47, 3, 0, 2),
    Sketcher.Constraint("Vertical", 4, 2, 7, 2),
    Sketcher.Constraint("Vertical", 8, 2, 11, 2),
    Sketcher.Constraint("Vertical", 12, 2, 15, 2),
    Sketcher.Constraint("Vertical", 16, 2, 19, 2),
    Sketcher.Constraint("Vertical", 20, 2, 23, 2),
    Sketcher.Constraint("Vertical", 28, 2, 31, 2),
    Sketcher.Constraint("Vertical", 32, 2, 35, 2),
    Sketcher.Constraint("Vertical", 36, 2, 39, 2),
    Sketcher.Constraint("Vertical", 40, 2, 43, 2),
    Sketcher.Constraint("Equal", 8, 12),
    Sketcher.Constraint("Equal", 10, 14),
    Sketcher.Constraint("Equal", 12, 16),
    Sketcher.Constraint("Equal", 14, 18),
    Sketcher.Constraint("Equal", 16, 20),
    Sketcher.Constraint("Equal", 18, 22),
    Sketcher.Constraint("Equal", 20, 24),
    Sketcher.Constraint("Equal", 6, 26),
    Sketcher.Constraint("Radius", 1, Q("0.25 mm")),
    Sketcher.Constraint("DistanceX", 4, 2, 4, 1, Q("2.5 mm")),
    Sketcher.Constraint("DistanceY", 0, 1, 0, 2, Q("0.5 mm")),
    Sketcher.Constraint("DistanceY", 27, 2, -1, 1, Q("7 mm")),
    Sketcher.Constraint("DistanceY", 2, 1, 2, 2, Q("1.82 mm")),
    Sketcher.Constraint("DistanceY", 10, 2, 10, 1, Q("1.57 mm")),
    Sketcher.Constraint("DistanceX", -1, 1, 1, 3, Q("22.126471 mm")),
])
sketch4.setExpression("Constraints[133]", "Params.sketch4_radius")
sketch4.setExpression("Constraints[134]", "Params.sketch4_width")
sketch4.setExpression("Constraints[135]", "Params.sketch4_height")
sketch4.setExpression("Constraints[137]", "Params.sketch4_height2")
sketch4.setExpression("Constraints[138]", "Params.sketch4_height3")
pad3 = doc.addObject("PartDesign::Pad", "Pad002")
body.addObject(pad3)
pad3.Profile = sketch4
pad3.setExpression("Length", "Params.pad3_length")

sketch5 = doc.addObject("Sketcher::SketchObject", "Sketch004")
body.addObject(sketch5)
sketch5.AttachmentSupport = (doc.XY_Plane, [""])
sketch5.MapMode = "FlatFace"
sketch5.AttachmentOffset = App.Placement(V(0, 0, 4.4), App.Rotation())
sketch5.addGeometry([
    Part.LineSegment(V(20.5, -5.4, 0), V(20.5, -6.2, 0)),
    Part.LineSegment(V(20.5, -6.2, 0), V(21.3, -6.2, 0)),
    Part.LineSegment(V(21.3, -6.2, 0), V(21.3, -5.4, 0)),
    Part.LineSegment(V(21.3, -5.4, 0), V(20.5, -5.4, 0)),
    Part.LineSegment(V(20.5, -2.8, 0), V(20.5, -3.6, 0)),
    Part.LineSegment(V(20.5, -3.6, 0), V(21.3, -3.6, 0)),
    Part.LineSegment(V(21.3, -3.6, 0), V(21.3, -2.8, 0)),
    Part.LineSegment(V(21.3, -2.8, 0), V(20.5, -2.8, 0)),
    Part.LineSegment(V(20.5, -0.2, 0), V(20.5, -1, 0)),
    Part.LineSegment(V(20.5, -1, 0), V(21.3, -1, 0)),
    Part.LineSegment(V(21.3, -1, 0), V(21.3, -0.2, 0)),
    Part.LineSegment(V(21.3, -0.2, 0), V(20.5, -0.2, 0)),
    Part.LineSegment(V(20.5, 2.4, 0), V(20.5, 1.6, 0)),
    Part.LineSegment(V(20.5, 1.6, 0), V(21.3, 1.6, 0)),
    Part.LineSegment(V(21.3, 1.6, 0), V(21.3, 2.4, 0)),
    Part.LineSegment(V(21.3, 2.4, 0), V(20.5, 2.4, 0)),
    Part.LineSegment(V(20.5, 5, 0), V(20.5, 4.2, 0)),
    Part.LineSegment(V(20.5, 4.2, 0), V(21.3, 4.2, 0)),
    Part.LineSegment(V(21.3, 4.2, 0), V(21.3, 5, 0)),
    Part.LineSegment(V(21.3, 5, 0), V(20.5, 5, 0)),
    Part.LineSegment(V(20.5, 7.7, 0), V(20.5, 6.9, 0)),
    Part.LineSegment(V(20.5, 6.9, 0), V(21.3, 6.9, 0)),
    Part.LineSegment(V(21.3, 6.9, 0), V(21.3, 7.7, 0)),
    Part.LineSegment(V(21.3, 7.7, 0), V(20.5, 7.7, 0)),
], False)
sketch5.addConstraint([
    Sketcher.Constraint("Coincident", 0, 2, 1, 1),
    Sketcher.Constraint("Coincident", 1, 2, 2, 1),
    Sketcher.Constraint("Coincident", 2, 2, 3, 1),
    Sketcher.Constraint("Coincident", 3, 2, 0, 1),
    Sketcher.Constraint("Coincident", 4, 2, 5, 1),
    Sketcher.Constraint("Coincident", 5, 2, 6, 1),
    Sketcher.Constraint("Coincident", 6, 2, 7, 1),
    Sketcher.Constraint("Coincident", 7, 2, 4, 1),
    Sketcher.Constraint("Coincident", 8, 2, 9, 1),
    Sketcher.Constraint("Coincident", 9, 2, 10, 1),
    Sketcher.Constraint("Coincident", 10, 2, 11, 1),
    Sketcher.Constraint("Coincident", 11, 2, 8, 1),
    Sketcher.Constraint("Coincident", 12, 2, 13, 1),
    Sketcher.Constraint("Coincident", 13, 2, 14, 1),
    Sketcher.Constraint("Coincident", 14, 2, 15, 1),
    Sketcher.Constraint("Coincident", 15, 2, 12, 1),
    Sketcher.Constraint("Coincident", 16, 2, 17, 1),
    Sketcher.Constraint("Coincident", 17, 2, 18, 1),
    Sketcher.Constraint("Coincident", 18, 2, 19, 1),
    Sketcher.Constraint("Coincident", 19, 2, 16, 1),
    Sketcher.Constraint("Coincident", 20, 2, 21, 1),
    Sketcher.Constraint("Coincident", 21, 2, 22, 1),
    Sketcher.Constraint("Coincident", 22, 2, 23, 1),
    Sketcher.Constraint("Coincident", 23, 2, 20, 1),
    Sketcher.Constraint("Vertical", 0),
    Sketcher.Constraint("Horizontal", 1),
    Sketcher.Constraint("Vertical", 2),
    Sketcher.Constraint("Horizontal", 3),
    Sketcher.Constraint("Vertical", 4),
    Sketcher.Constraint("Horizontal", 5),
    Sketcher.Constraint("Vertical", 6),
    Sketcher.Constraint("Horizontal", 7),
    Sketcher.Constraint("Vertical", 8),
    Sketcher.Constraint("Horizontal", 9),
    Sketcher.Constraint("Vertical", 10),
    Sketcher.Constraint("Horizontal", 11),
    Sketcher.Constraint("Vertical", 12),
    Sketcher.Constraint("Horizontal", 13),
    Sketcher.Constraint("Vertical", 14),
    Sketcher.Constraint("Horizontal", 15),
    Sketcher.Constraint("Vertical", 16),
    Sketcher.Constraint("Horizontal", 17),
    Sketcher.Constraint("Vertical", 18),
    Sketcher.Constraint("Horizontal", 19),
    Sketcher.Constraint("Vertical", 20),
    Sketcher.Constraint("Horizontal", 21),
    Sketcher.Constraint("Vertical", 22),
    Sketcher.Constraint("Horizontal", 23),
    Sketcher.Constraint("Vertical", 3, 2, 4, 2),
    Sketcher.Constraint("Vertical", 2, 2, 5, 2),
    Sketcher.Constraint("Vertical", 7, 2, 8, 2),
    Sketcher.Constraint("Vertical", 6, 2, 9, 2),
    Sketcher.Constraint("Vertical", 11, 2, 12, 2),
    Sketcher.Constraint("Vertical", 10, 2, 13, 2),
    Sketcher.Constraint("Vertical", 15, 2, 16, 2),
    Sketcher.Constraint("Vertical", 14, 2, 17, 2),
    Sketcher.Constraint("Vertical", 19, 2, 20, 2),
    Sketcher.Constraint("Vertical", 18, 2, 21, 2),
    Sketcher.Constraint("Equal", 23, 0),
    Sketcher.Constraint("Equal", 2, 4),
    Sketcher.Constraint("Equal", 6, 8),
    Sketcher.Constraint("Equal", 10, 12),
    Sketcher.Constraint("Equal", 14, 16),
    Sketcher.Constraint("Equal", 18, 20),
    Sketcher.Constraint("DistanceX", 1, 1, 1, 2, Q("0.8 mm")),
    Sketcher.Constraint("DistanceY", 8, 2, -1, 1, Q("1 mm")),
    Sketcher.Constraint("DistanceY", 0, 2, -1, 1, Q("6.24 mm")),
    Sketcher.Constraint("DistanceY", 4, 2, -1, 1, Q("3.62 mm")),
    Sketcher.Constraint("DistanceY", -1, 1, 12, 2, Q("1.62 mm")),
    Sketcher.Constraint("DistanceY", -1, 1, 16, 2, Q("4.24 mm")),
    Sketcher.Constraint("DistanceY", -1, 1, 20, 2, Q("6.86 mm")),
    Sketcher.Constraint("DistanceX", -1, 1, 0, 2, Q("20.476471 mm")),
])
sketch5.setExpression("Constraints[64]", "Params.sketch5_width")
pad4 = doc.addObject("PartDesign::Pad", "Pad003")
body.addObject(pad4)
pad4.Profile = sketch5
pad4.setExpression("Length", "Params.pad4_length")

doc.recompute()
